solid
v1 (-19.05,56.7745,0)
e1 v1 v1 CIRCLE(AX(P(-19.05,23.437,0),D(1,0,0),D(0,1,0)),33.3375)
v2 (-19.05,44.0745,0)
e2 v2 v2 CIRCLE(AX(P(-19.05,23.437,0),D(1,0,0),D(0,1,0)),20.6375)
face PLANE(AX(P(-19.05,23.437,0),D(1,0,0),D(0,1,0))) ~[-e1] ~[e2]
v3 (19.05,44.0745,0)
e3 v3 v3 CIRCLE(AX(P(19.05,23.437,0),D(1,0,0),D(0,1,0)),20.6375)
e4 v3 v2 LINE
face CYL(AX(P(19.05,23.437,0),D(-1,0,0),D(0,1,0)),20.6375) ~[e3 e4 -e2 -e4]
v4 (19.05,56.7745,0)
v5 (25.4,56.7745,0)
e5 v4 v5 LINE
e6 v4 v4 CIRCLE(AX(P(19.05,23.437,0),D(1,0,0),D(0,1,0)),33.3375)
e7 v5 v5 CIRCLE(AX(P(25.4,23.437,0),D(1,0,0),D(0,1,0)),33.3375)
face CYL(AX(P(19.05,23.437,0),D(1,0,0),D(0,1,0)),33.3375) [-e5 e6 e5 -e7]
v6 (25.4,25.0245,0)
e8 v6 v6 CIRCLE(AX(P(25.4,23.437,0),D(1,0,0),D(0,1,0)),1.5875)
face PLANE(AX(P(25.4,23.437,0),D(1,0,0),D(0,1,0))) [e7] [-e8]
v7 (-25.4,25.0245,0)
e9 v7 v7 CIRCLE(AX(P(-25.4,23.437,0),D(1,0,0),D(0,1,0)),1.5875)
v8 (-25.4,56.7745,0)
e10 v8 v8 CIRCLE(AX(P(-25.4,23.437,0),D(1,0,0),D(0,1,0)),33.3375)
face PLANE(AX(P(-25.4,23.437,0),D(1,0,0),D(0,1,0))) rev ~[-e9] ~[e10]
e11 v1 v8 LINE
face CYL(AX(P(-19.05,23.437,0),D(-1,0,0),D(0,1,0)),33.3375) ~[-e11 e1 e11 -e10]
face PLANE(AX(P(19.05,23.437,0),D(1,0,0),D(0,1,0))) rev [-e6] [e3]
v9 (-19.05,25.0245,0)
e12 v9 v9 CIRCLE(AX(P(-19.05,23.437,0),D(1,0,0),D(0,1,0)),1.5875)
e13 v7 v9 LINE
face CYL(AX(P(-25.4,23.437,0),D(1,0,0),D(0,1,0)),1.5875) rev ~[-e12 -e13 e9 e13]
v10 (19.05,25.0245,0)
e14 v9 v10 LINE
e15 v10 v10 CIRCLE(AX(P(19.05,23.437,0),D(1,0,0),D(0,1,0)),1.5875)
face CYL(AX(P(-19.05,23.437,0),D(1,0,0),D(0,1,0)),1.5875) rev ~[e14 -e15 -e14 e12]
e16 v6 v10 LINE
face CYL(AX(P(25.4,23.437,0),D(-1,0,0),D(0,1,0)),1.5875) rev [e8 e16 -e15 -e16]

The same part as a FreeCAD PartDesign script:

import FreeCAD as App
import Part
import Sketcher
Q = App.Units.Quantity


def add_polygon(sketch, points):
    """Adds a closed chain of lines whose ends are joined by coincident constraints."""
    first, n = sketch.GeometryCount, len(points)
    for a, b in zip(points, points[1:] + points[:1]):
        sketch.addGeometry(Part.LineSegment(App.Vector(*a, 0), App.Vector(*b, 0)), False)
    for i in range(n):
        sketch.addConstraint(Sketcher.Constraint("Coincident", first + i, 2, first + (i + 1) % n, 1))

doc = App.newDocument("Part")
body = doc.addObject("PartDesign::Body", "Body")

sketch1 = body.newObject("Sketcher::SketchObject", "Sketch")
sketch1.AttachmentSupport = (doc.getObject("XY_Plane"), [""])
sketch1.MapMode = "FlatFace"
add_polygon(sketch1, [(19, 44), (-19, 44), (-19, 57), (-25, 57), (-25, 25), (25, 25), (25, 57), (19, 57)])
sketch1.addGeometry(Part.LineSegment(App.Vector(-25, 23, 0), App.Vector(25, 23, 0)), True)
sketch1.addConstraint([
    Sketcher.Constraint("Horizontal", 0),
    Sketcher.Constraint("Vertical", 1),
    Sketcher.Constraint("Horizontal", 2),
    Sketcher.Constraint("Vertical", 3),
    Sketcher.Constraint("Horizontal", 4),
    Sketcher.Constraint("Vertical", 5),
    Sketcher.Constraint("Horizontal", 6),
    Sketcher.Constraint("Vertical", 7),
    Sketcher.Constraint("Horizontal", 8),
    Sketcher.Constraint("Symmetric", 2, 2, 5, 2, -2),
    Sketcher.Constraint("Vertical", 3, 2, 8, 1),
    Sketcher.Constraint("Vertical", 5, 2, 8, 2),
    Sketcher.Constraint("Equal", 2, 6),
    Sketcher.Constraint("DistanceX", 0, 2, 0, 1, Q("1.5 in")),
    Sketcher.Constraint("DistanceY", 1, 1, 1, 2, Q("0.5 in")),
    Sketcher.Constraint("DistanceX", 2, 2, 2, 1, Q("0.25 in")),
    Sketcher.Constraint("DistanceY", 3, 2, 3, 1, Q("1.25 in")),
    Sketcher.Constraint("DistanceY", 8, 1, 3, 2, Q("0.0625 in")),
    Sketcher.Constraint("DistanceY", -1, 1, 0, 2, Q("44.0745 mm")),
])
revolution = body.newObject("PartDesign::Revolution", "Revolution")
revolution.Profile = sketch1
revolution.ReferenceAxis = (sketch1, ["Axis0"])
revolution.Angle = 360

doc.recompute()
